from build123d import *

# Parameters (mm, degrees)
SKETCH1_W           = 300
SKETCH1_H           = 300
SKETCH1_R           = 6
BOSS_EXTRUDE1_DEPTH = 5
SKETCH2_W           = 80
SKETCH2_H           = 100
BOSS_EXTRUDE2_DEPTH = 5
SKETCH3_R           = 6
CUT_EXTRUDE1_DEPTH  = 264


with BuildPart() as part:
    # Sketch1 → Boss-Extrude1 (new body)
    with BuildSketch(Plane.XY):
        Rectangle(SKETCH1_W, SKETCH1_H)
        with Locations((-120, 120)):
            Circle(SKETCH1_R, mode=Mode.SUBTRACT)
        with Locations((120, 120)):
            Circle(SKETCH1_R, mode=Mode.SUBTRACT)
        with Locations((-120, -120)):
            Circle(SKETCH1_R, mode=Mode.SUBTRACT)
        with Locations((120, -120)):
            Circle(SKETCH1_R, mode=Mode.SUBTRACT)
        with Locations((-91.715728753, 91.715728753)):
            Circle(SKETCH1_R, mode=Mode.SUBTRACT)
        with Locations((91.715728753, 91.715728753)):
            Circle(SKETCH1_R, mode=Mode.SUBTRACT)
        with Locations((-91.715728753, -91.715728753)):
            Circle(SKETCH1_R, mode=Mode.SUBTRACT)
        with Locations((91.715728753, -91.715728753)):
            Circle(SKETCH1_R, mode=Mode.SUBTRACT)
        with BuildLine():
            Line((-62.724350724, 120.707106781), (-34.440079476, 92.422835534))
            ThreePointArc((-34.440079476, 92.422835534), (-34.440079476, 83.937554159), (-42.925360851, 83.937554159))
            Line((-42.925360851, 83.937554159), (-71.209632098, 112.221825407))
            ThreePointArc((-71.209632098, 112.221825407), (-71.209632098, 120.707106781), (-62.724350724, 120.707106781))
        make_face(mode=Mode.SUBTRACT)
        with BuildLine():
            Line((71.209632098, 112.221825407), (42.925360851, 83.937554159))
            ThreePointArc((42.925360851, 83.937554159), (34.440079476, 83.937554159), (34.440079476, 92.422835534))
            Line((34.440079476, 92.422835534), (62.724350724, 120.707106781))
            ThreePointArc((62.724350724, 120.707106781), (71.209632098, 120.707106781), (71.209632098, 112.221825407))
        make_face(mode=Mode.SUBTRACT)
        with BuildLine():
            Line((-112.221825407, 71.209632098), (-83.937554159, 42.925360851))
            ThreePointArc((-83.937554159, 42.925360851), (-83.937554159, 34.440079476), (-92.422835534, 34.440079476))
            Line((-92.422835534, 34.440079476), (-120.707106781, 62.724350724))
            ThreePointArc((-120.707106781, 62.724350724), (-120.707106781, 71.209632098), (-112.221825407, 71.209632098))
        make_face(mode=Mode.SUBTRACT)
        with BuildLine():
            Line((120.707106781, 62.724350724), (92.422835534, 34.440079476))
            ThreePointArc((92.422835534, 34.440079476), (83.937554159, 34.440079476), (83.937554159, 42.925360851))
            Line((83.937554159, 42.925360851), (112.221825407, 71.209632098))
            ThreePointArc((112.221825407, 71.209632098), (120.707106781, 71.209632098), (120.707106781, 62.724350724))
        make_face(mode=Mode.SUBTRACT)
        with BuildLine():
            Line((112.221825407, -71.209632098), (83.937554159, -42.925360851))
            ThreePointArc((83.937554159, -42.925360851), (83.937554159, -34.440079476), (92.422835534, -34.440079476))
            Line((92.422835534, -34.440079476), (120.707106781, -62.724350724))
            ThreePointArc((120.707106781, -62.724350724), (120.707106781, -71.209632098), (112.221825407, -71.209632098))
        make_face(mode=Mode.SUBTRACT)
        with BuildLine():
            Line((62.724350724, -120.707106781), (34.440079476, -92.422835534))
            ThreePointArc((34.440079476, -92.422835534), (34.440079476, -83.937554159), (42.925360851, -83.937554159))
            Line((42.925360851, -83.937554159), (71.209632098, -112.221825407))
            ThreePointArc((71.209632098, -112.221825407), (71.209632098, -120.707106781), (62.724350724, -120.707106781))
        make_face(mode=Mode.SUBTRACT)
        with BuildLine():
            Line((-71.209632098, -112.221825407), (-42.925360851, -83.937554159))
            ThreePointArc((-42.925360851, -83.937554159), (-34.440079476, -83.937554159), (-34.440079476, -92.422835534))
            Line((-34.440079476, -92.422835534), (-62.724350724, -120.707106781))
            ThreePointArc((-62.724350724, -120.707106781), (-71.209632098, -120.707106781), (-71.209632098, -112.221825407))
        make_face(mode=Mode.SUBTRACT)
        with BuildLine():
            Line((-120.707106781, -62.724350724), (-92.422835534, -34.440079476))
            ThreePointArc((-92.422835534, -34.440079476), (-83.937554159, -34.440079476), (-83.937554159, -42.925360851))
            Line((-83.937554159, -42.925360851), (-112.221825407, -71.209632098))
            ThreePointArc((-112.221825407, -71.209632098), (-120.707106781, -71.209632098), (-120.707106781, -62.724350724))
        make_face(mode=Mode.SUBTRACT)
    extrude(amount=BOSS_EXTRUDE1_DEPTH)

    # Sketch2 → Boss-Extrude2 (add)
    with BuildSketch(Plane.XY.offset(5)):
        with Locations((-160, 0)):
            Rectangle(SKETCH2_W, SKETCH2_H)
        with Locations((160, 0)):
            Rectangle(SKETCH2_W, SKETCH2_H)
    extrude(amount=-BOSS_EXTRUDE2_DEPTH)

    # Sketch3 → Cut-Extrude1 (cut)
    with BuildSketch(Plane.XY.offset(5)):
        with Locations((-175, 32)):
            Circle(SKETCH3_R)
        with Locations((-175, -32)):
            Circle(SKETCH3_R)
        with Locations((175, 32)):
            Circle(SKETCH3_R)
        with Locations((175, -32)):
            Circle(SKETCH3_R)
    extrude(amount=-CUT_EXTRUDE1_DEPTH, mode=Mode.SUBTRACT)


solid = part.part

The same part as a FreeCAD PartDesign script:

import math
import FreeCAD as App
import Part
import Sketcher

V = App.Vector

doc = App.newDocument("Part")
body = doc.addObject("PartDesign::Body", "Body")

# Sketch on XY plane
sketch1 = body.newObject("Sketcher::SketchObject", "Sketch")
sketch1.AttachmentSupport = (doc.getObject("XY_Plane"), [""])
sketch1.MapMode = "FlatFace"
sketch1.addGeometry([
    Part.LineSegment(V(-150, 150, 0), V(-150, -150, 0)),  # 0
    Part.LineSegment(V(-150, -150, 0), V(150, -150, 0)),  # 1
    Part.LineSegment(V(150, -150, 0), V(150, 150, 0)),  # 2
    Part.LineSegment(V(150, 150, 0), V(-150, 150, 0)),  # 3
    Part.Circle(V(-120, -120, 0), V(0, 0, 1), 6),  # 4
    Part.Circle(V(-91.715729, -91.715729, 0), V(0, 0, 1), 6),  # 5
    Part.ArcOfCircle(Part.Circle(V(-66.966991, -116.464466, 0), V(0, 0, 1), 6), math.radians(135), math.radians(315)),  # 6
    Part.LineSegment(V(-71.209632, -112.221825, 0), V(-42.925361, -83.937554, 0)),  # 7
    Part.ArcOfCircle(Part.Circle(V(-38.68272, -88.180195, 0), V(0, 0, 1), 6), math.radians(-45), math.radians(135)),  # 8
    Part.LineSegment(V(-34.440079, -92.422836, 0), V(-62.724351, -120.707107, 0)),  # 9
    Part.ArcOfCircle(Part.Circle(V(-116.464466, -66.966991, 0), V(0, 0, 1), 6), math.radians(135), math.radians(315)),  # 10
    Part.LineSegment(V(-120.707107, -62.724351, 0), V(-92.422836, -34.440079, 0)),  # 11
    Part.ArcOfCircle(Part.Circle(V(-88.180195, -38.68272, 0), V(0, 0, 1), 6), math.radians(-45), math.radians(135)),  # 12
    Part.LineSegment(V(-83.937554, -42.925361, 0), V(-112.221825, -71.209632, 0)),  # 13
    Part.ArcOfCircle(Part.Circle(V(66.966991, -116.464466, 0), V(0, 0, 1), 6), math.radians(-135), math.radians(45)),  # 14
    Part.LineSegment(V(62.724351, -120.707107, 0), V(34.440079, -92.422836, 0)),  # 15
    Part.ArcOfCircle(Part.Circle(V(38.68272, -88.180195, 0), V(0, 0, 1), 6), math.radians(45), math.radians(225)),  # 16
    Part.LineSegment(V(42.925361, -83.937554, 0), V(71.209632, -112.221825, 0)),  # 17
    Part.Circle(V(120, -120, 0), V(0, 0, 1), 6),  # 18
    Part.Circle(V(91.715729, -91.715729, 0), V(0, 0, 1), 6),  # 19
    Part.ArcOfCircle(Part.Circle(V(116.464466, -66.966991, 0), V(0, 0, 1), 6), math.radians(-135), math.radians(45)),  # 20
    Part.LineSegment(V(112.221825, -71.209632, 0), V(83.937554, -42.925361, 0)),  # 21
    Part.ArcOfCircle(Part.Circle(V(88.180195, -38.68272, 0), V(0, 0, 1), 6), math.radians(45), math.radians(225)),  # 22
    Part.LineSegment(V(92.422836, -34.440079, 0), V(120.707107, -62.724351, 0)),  # 23
    Part.ArcOfCircle(Part.Circle(V(-116.464466, 66.966991, 0), V(0, 0, 1), 6), math.radians(45), math.radians(225)),  # 24
    Part.LineSegment(V(-112.221825, 71.209632, 0), V(-83.937554, 42.925361, 0)),  # 25
    Part.ArcOfCircle(Part.Circle(V(-88.180195, 38.68272, 0), V(0, 0, 1), 6), math.radians(-135), math.radians(45)),  # 26
    Part.LineSegment(V(-92.422836, 34.440079, 0), V(-120.707107, 62.724351, 0)),  # 27
    Part.Circle(V(-91.715729, 91.715729, 0), V(0, 0, 1), 6),  # 28
    Part.Circle(V(-120, 120, 0), V(0, 0, 1), 6),  # 29
    Part.ArcOfCircle(Part.Circle(V(-66.966991, 116.464466, 0), V(0, 0, 1), 6), math.radians(45), math.radians(225)),  # 30
    Part.LineSegment(V(-62.724351, 120.707107, 0), V(-34.440079, 92.422836, 0)),  # 31
    Part.ArcOfCircle(Part.Circle(V(-38.68272, 88.180195, 0), V(0, 0, 1), 6), math.radians(-135), math.radians(45)),  # 32
    Part.LineSegment(V(-42.925361, 83.937554, 0), V(-71.209632, 112.221825, 0)),  # 33
    Part.ArcOfCircle(Part.Circle(V(116.464466, 66.966991, 0), V(0, 0, 1), 6), math.radians(-45), math.radians(135)),  # 34
    Part.LineSegment(V(120.707107, 62.724351, 0), V(92.422836, 34.440079, 0)),  # 35
    Part.ArcOfCircle(Part.Circle(V(88.180195, 38.68272, 0), V(0, 0, 1), 6), math.radians(135), math.radians(315)),  # 36
    Part.LineSegment(V(83.937554, 42.925361, 0), V(112.221825, 71.209632, 0)),  # 37
    Part.ArcOfCircle(Part.Circle(V(66.966991, 116.464466, 0), V(0, 0, 1), 6), math.radians(-45), math.radians(135)),  # 38
    Part.LineSegment(V(71.209632, 112.221825, 0), V(42.925361, 83.937554, 0)),  # 39
    Part.ArcOfCircle(Part.Circle(V(38.68272, 88.180195, 0), V(0, 0, 1), 6), math.radians(135), math.radians(315)),  # 40
    Part.LineSegment(V(34.440079, 92.422836, 0), V(62.724351, 120.707107, 0)),  # 41
    Part.Circle(V(91.715729, 91.715729, 0), V(0, 0, 1), 6),  # 42
    Part.Circle(V(120, 120, 0), V(0, 0, 1), 6),  # 43
], False)
sketch1.addConstraint([
    Sketcher.Constraint("Coincident", 0, 2, 1, 1),
    Sketcher.Constraint("Coincident", 1, 2, 2, 1),
    Sketcher.Constraint("Coincident", 2, 2, 3, 1),
    Sketcher.Constraint("Coincident", 3, 2, 0, 1),
    Sketcher.Constraint("Tangent", 6, 1, 7, 1),
    Sketcher.Constraint("Tangent", 7, 2, 8, 2),
    Sketcher.Constraint("Tangent", 8, 1, 9, 1),
    Sketcher.Constraint("Tangent", 9, 2, 6, 2),
    Sketcher.Constraint("Tangent", 10, 1, 11, 1),
    Sketcher.Constraint("Tangent", 11, 2, 12, 2),
    Sketcher.Constraint("Tangent", 12, 1, 13, 1),
    Sketcher.Constraint("Tangent", 13, 2, 10, 2),
    Sketcher.Constraint("Tangent", 14, 1, 15, 1),
    Sketcher.Constraint("Tangent", 15, 2, 16, 2),
    Sketcher.Constraint("Tangent", 16, 1, 17, 1),
    Sketcher.Constraint("Tangent", 17, 2, 14, 2),
    Sketcher.Constraint("Tangent", 20, 1, 21, 1),
    Sketcher.Constraint("Tangent", 21, 2, 22, 2),
    Sketcher.Constraint("Tangent", 22, 1, 23, 1),
    Sketcher.Constraint("Tangent", 23, 2, 20, 2),
    Sketcher.Constraint("Tangent", 24, 1, 25, 1),
    Sketcher.Constraint("Tangent", 25, 2, 26, 2),
    Sketcher.Constraint("Tangent", 26, 1, 27, 1),
    Sketcher.Constraint("Tangent", 27, 2, 24, 2),
    Sketcher.Constraint("Tangent", 30, 1, 31, 1),
    Sketcher.Constraint("Tangent", 31, 2, 32, 2),
    Sketcher.Constraint("Tangent", 32, 1, 33, 1),
    Sketcher.Constraint("Tangent", 33, 2, 30, 2),
    Sketcher.Constraint("Tangent", 34, 1, 35, 1),
    Sketcher.Constraint("Tangent", 35, 2, 36, 2),
    Sketcher.Constraint("Tangent", 36, 1, 37, 1),
    Sketcher.Constraint("Tangent", 37, 2, 34, 2),
    Sketcher.Constraint("Tangent", 38, 1, 39, 1),
    Sketcher.Constraint("Tangent", 39, 2, 40, 2),
    Sketcher.Constraint("Tangent", 40, 1, 41, 1),
    Sketcher.Constraint("Tangent", 41, 2, 38, 2),
    Sketcher.Constraint("Vertical", 0),
    Sketcher.Constraint("Horizontal", 1),
    Sketcher.Constraint("Vertical", 2),
    Sketcher.Constraint("Horizontal", 3),
    Sketcher.Constraint("Equal", 4, 5),
    Sketcher.Constraint("Equal", 5, 6),
    Sketcher.Constraint("Equal", 6, 8),
    Sketcher.Constraint("Equal", 8, 10),
    Sketcher.Constraint("Equal", 10, 12),
    Sketcher.Constraint("Equal", 12, 14),
    Sketcher.Constraint("Equal", 14, 16),
    Sketcher.Constraint("Equal", 16, 18),
    Sketcher.Constraint("Equal", 18, 19),
    Sketcher.Constraint("Equal", 19, 20),
    Sketcher.Constraint("Equal", 20, 22),
    Sketcher.Constraint("Equal", 22, 24),
    Sketcher.Constraint("Equal", 24, 26),
    Sketcher.Constraint("Equal", 26, 28),
    Sketcher.Constraint("Equal", 28, 29),
    Sketcher.Constraint("Equal", 29, 30),
    Sketcher.Constraint("Equal", 30, 32),
    Sketcher.Constraint("Equal", 32, 34),
    Sketcher.Constraint("Equal", 34, 36),
    Sketcher.Constraint("Equal", 36, 38),
    Sketcher.Constraint("Equal", 38, 40),
    Sketcher.Constraint("Equal", 40, 42),
    Sketcher.Constraint("Equal", 42, 43),
    Sketcher.Constraint("Symmetric", 20, 3, 24, 3, -1, 1),
    Sketcher.Constraint("Symmetric", 22, 3, 26, 3, -1, 1),
    Sketcher.Constraint("Symmetric", 19, 3, 28, 3, -1, 1),
    Sketcher.Constraint("Symmetric", 18, 3, 29, 3, -1, 1),
    Sketcher.Constraint("Symmetric", 14, 3, 30, 3, -1, 1),
    Sketcher.Constraint("Symmetric", 16, 3, 32, 3, -1, 1),
    Sketcher.Constraint("Symmetric", 10, 3, 34, 3, -1, 1),
    Sketcher.Constraint("Symmetric", 12, 3, 36, 3, -1, 1),
    Sketcher.Constraint("Symmetric", 6, 3, 38, 3, -1, 1),
    Sketcher.Constraint("Symmetric", 8, 3, 40, 3, -1, 1),
    Sketcher.Constraint("Symmetric", 5, 3, 42, 3, -1, 1),
    Sketcher.Constraint("Symmetric", 4, 3, 43, 3, -1, 1),
    Sketcher.Constraint("Symmetric", 0, 2, 2, 2, -1, 1),
    Sketcher.Constraint("Symmetric", 6, 3, 14, 3, -2),
    Sketcher.Constraint("Symmetric", 8, 3, 16, 3, -2),
    Sketcher.Constraint("Symmetric", 4, 3, 18, 3, -2),
    Sketcher.Constraint("Symmetric", 5, 3, 19, 3, -2),
    Sketcher.Constraint("Symmetric", 10, 3, 20, 3, -2),
    Sketcher.Constraint("Symmetric", 12, 3, 22, 3, -2),
    Sketcher.Constraint("Parallel", 9, 11),
    Sketcher.Constraint("Perpendicular", 13, 15),
    Sketcher.Constraint("Equal", 3, 0),
    Sketcher.Constraint("Equal", 9, 11),
    Sketcher.Constraint("Diameter", 4, 12.0),
    Sketcher.Constraint("DistanceX", 1, 1, 1, 2, 300.0),
    Sketcher.Constraint("Distance", 7, 40.0),
    Sketcher.Constraint("DistanceX", 4, 3, -1, 1, 120.0),
    Sketcher.Constraint("DistanceY", 4, 3, -1, 1, 120.0),
    Sketcher.Constraint("DistanceX", 5, 3, -1, 1, 91.715729),
    Sketcher.Constraint("DistanceY", 5, 3, -1, 1, 91.715729),
    Sketcher.Constraint("DistanceX", 6, 3, -1, 1, 66.966991),
    Sketcher.Constraint("DistanceY", 10, 3, -1, 1, 66.966991),
    Sketcher.Constraint("DistanceY", 9, 2, 5, 3, 28.991378),
    Sketcher.Constraint("DistanceX", 10, 1, 5, 3, 28.991378),
])
pad1 = body.newObject("PartDesign::Pad", "Pad")
pad1.Profile = sketch1
pad1.Length = 5

# Sketch on XY plane
sketch2 = body.newObject("Sketcher::SketchObject", "Sketch001")
sketch2.AttachmentSupport = (doc.getObject("XY_Plane"), [""])
sketch2.MapMode = "FlatFace"
sketch2.AttachmentOffset = App.Placement(V(0, 0, 5), App.Rotation())
sketch2.addGeometry([
    Part.LineSegment(V(-200, 50, 0), V(-200, -50, 0)),  # 0
    Part.LineSegment(V(-200, -50, 0), V(-120, -50, 0)),  # 1
    Part.LineSegment(V(-120, -50, 0), V(-120, 50, 0)),  # 2
    Part.LineSegment(V(-120, 50, 0), V(-200, 50, 0)),  # 3
    Part.LineSegment(V(120, 50, 0), V(120, -50, 0)),  # 4
    Part.LineSegment(V(120, -50, 0), V(200, -50, 0)),  # 5
    Part.LineSegment(V(200, -50, 0), V(200, 50, 0)),  # 6
    Part.LineSegment(V(200, 50, 0), V(120, 50, 0)),  # 7
], False)
sketch2.addConstraint([
    Sketcher.Constraint("Coincident", 0, 2, 1, 1),
    Sketcher.Constraint("Coincident", 1, 2, 2, 1),
    Sketcher.Constraint("Coincident", 2, 2, 3, 1),
    Sketcher.Constraint("Coincident", 3, 2, 0, 1),
    Sketcher.Constraint("Coincident", 4, 2, 5, 1),
    Sketcher.Constraint("Coincident", 5, 2, 6, 1),
    Sketcher.Constraint("Coincident", 6, 2, 7, 1),
    Sketcher.Constraint("Coincident", 7, 2, 4, 1),
    Sketcher.Constraint("Vertical", 0),
    Sketcher.Constraint("Horizontal", 1),
    Sketcher.Constraint("Vertical", 2),
    Sketcher.Constraint("Horizontal", 3),
    Sketcher.Constraint("Vertical", 4),
    Sketcher.Constraint("Horizontal", 5),
    Sketcher.Constraint("Vertical", 6),
    Sketcher.Constraint("Horizontal", 7),
    Sketcher.Constraint("Symmetric", 2, 2, 4, 2, -1, 1),
    Sketcher.Constraint("Symmetric", 0, 2, 6, 2, -1, 1),
    Sketcher.Constraint("Horizontal", 1, 2, 4, 2),
    Sketcher.Constraint("DistanceX", 1, 1, 1, 2, 80.0),
    Sketcher.Constraint("DistanceY", 0, 2, 0, 1, 100.0),
    Sketcher.Constraint("DistanceX", 0, 2, -1, 1, 200.0),
])
pad2 = body.newObject("PartDesign::Pad", "Pad001")
pad2.Profile = sketch2
pad2.Length = 5
pad2.Reversed = True

# Sketch on XY plane
sketch3 = body.newObject("Sketcher::SketchObject", "Sketch002")
sketch3.AttachmentSupport = (doc.getObject("XY_Plane"), [""])
sketch3.MapMode = "FlatFace"
sketch3.AttachmentOffset = App.Placement(V(0, 0, 5), App.Rotation())
sketch3.addGeometry([
    Part.Circle(V(-175, 32, 0), V(0, 0, 1), 6),
    Part.Circle(V(-175, -32, 0), V(0, 0, 1), 6),
    Part.Circle(V(175, 32, 0), V(0, 0, 1), 6),
    Part.Circle(V(175, -32, 0), V(0, 0, 1), 6),
], False)
sketch3.addConstraint([
    Sketcher.Constraint("Equal", 0, 1),
    Sketcher.Constraint("Equal", 1, 2),
    Sketcher.Constraint("Equal", 2, 3),
    Sketcher.Constraint("Symmetric", 1, 3, 2, 3, -1, 1),
    Sketcher.Constraint("Symmetric", 0, 3, 3, 3, -1, 1),
    Sketcher.Constraint("Symmetric", 0, 3, 2, 3, -2),
    Sketcher.Constraint("Diameter", 0, 12.0),
    Sketcher.Constraint("DistanceX", 0, 3, -1, 1, 175.0),
    Sketcher.Constraint("DistanceY", -1, 1, 0, 3, 32.0),
])
pocket1 = body.newObject("PartDesign::Pocket", "Pocket")
pocket1.Profile = sketch3
pocket1.Length = 264

doc.recompute()
